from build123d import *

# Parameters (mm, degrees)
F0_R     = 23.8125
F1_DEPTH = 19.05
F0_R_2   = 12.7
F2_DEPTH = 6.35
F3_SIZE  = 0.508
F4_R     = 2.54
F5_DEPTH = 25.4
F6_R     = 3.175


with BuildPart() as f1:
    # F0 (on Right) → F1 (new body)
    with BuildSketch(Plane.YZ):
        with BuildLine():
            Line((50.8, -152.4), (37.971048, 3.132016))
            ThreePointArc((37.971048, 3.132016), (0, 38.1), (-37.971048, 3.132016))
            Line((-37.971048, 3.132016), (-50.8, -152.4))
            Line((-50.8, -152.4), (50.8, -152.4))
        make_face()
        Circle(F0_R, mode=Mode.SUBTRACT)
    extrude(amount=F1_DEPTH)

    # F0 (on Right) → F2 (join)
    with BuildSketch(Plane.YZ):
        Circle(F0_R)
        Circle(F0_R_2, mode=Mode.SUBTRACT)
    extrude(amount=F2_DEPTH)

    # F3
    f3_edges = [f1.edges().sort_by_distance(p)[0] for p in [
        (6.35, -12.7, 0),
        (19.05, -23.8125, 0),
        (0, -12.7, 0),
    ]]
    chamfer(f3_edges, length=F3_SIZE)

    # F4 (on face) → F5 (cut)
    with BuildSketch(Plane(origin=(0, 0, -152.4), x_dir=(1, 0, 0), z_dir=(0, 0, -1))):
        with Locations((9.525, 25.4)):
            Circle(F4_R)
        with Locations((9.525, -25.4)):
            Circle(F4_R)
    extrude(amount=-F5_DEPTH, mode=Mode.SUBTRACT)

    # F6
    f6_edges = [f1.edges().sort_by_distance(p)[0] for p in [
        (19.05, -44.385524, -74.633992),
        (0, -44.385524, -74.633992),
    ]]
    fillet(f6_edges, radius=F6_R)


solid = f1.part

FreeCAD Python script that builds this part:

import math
import FreeCAD as App
import Part
import Sketcher
Q = App.Units.Quantity


def edges_at(feature, points):
    """Names of the edges that pass closest to the given points."""
    edges = feature.Shape.Edges
    near = lambda p: min(range(len(edges)), key=lambda i: edges[i].distToShape(Part.Vertex(*p))[0])
    return sorted({f"Edge{near(p) + 1}" for p in points})

doc = App.newDocument("Part")
params = doc.addObject("Spreadsheet::Sheet", "Params")
for row, (alias, value) in enumerate([
    ("sketch1_radius", "1.5 in"),
    ("sketch1_width", "4 in"),
    ("sketch1_diameter", "1.875 in"),
    ("pad1_length", "0.75 in"),
    ("sketch2_diameter", "1 in"),
    ("sketch2_diameter2", "1.875 in"),
    ("pad2_length", "0.25 in"),
    ("chamfer_size", "0.02 in"),
    ("sketch3_diameter", "0.2 in"),
    ("pocket1_length", "1 in"),
    ("fillet_radius", "0.125 in"),
], start=1):
    params.set(f"A{row}", alias)
    params.set(f"B{row}", "=" + value)
    params.setAlias(f"B{row}", alias)

body = doc.addObject("PartDesign::Body", "Body")

sketch1 = doc.addObject("Sketcher::SketchObject", "Sketch")
body.addObject(sketch1)
sketch1.AttachmentSupport = (doc.YZ_Plane, [""])
sketch1.MapMode = "FlatFace"
sketch1.addGeometry(Part.LineSegment(App.Vector(50.8, -152.4, 0), App.Vector(37.971048, 3.132016, 0)), False)
sketch1.addGeometry(Part.ArcOfCircle(Part.Circle(App.Vector(0, 0, 0), App.Vector(0, 0, 1), 38.1), math.radians(4.715329), math.radians(175.284671)), False)
sketch1.addGeometry(Part.LineSegment(App.Vector(-37.971048, 3.132016, 0), App.Vector(-50.8, -152.4, 0)), False)
sketch1.addGeometry(Part.LineSegment(App.Vector(-50.8, -152.4, 0), App.Vector(50.8, -152.4, 0)), False)
sketch1.addGeometry(Part.Circle(App.Vector(0, 0, 0), App.Vector(0, 0, 1), 23.8125), False)
sketch1.addConstraint(Sketcher.Constraint("Tangent", 0, 2, 1, 1))
sketch1.addConstraint(Sketcher.Constraint("Tangent", 1, 2, 2, 1))
sketch1.addConstraint(Sketcher.Constraint("Coincident", 2, 2, 3, 1))
sketch1.addConstraint(Sketcher.Constraint("Coincident", 3, 2, 0, 1))
sketch1.addConstraint(Sketcher.Constraint("Horizontal", 3))
sketch1.addConstraint(Sketcher.Constraint("Coincident", 1, 3, -1, 1))
sketch1.addConstraint(Sketcher.Constraint("Coincident", 4, 3, -1, 1))
sketch1.addConstraint(Sketcher.Constraint("Horizontal", 0, 2, 1, 2))
sketch1.addConstraint(Sketcher.Constraint("Radius", 1, Q("1.5 in")))
sketch1.addConstraint(Sketcher.Constraint("DistanceX", 3, 1, 3, 2, Q("4 in")))
sketch1.addConstraint(Sketcher.Constraint("Diameter", 4, Q("1.875 in")))
sketch1.addConstraint(Sketcher.Constraint("DistanceY", 2, 2, -1, 1, Q("6 in")))
sketch1.setExpression("Constraints[8]", "Params.sketch1_radius")
sketch1.setExpression("Constraints[9]", "Params.sketch1_width")
sketch1.setExpression("Constraints[10]", "Params.sketch1_diameter")
pad1 = doc.addObject("PartDesign::Pad", "Pad")
body.addObject(pad1)
pad1.Profile = sketch1
pad1.setExpression("Length", "Params.pad1_length")

sketch2 = doc.addObject("Sketcher::SketchObject", "Sketch001")
body.addObject(sketch2)
sketch2.AttachmentSupport = (doc.YZ_Plane, [""])
sketch2.MapMode = "FlatFace"
sketch2.addGeometry(Part.Circle(App.Vector(0, 0, 0), App.Vector(0, 0, 1), 23.8125), False)
sketch2.addGeometry(Part.Circle(App.Vector(0, 0, 0), App.Vector(0, 0, 1), 12.7), False)
sketch2.addConstraint(Sketcher.Constraint("Coincident", 0, 3, -1, 1))
sketch2.addConstraint(Sketcher.Constraint("Coincident", 1, 3, -1, 1))
sketch2.addConstraint(Sketcher.Constraint("Diameter", 1, Q("1 in")))
sketch2.addConstraint(Sketcher.Constraint("Diameter", 0, Q("1.875 in")))
sketch2.setExpression("Constraints[2]", "Params.sketch2_diameter")
sketch2.setExpression("Constraints[3]", "Params.sketch2_diameter2")
pad2 = doc.addObject("PartDesign::Pad", "Pad001")
body.addObject(pad2)
pad2.Profile = sketch2
pad2.setExpression("Length", "Params.pad2_length")
doc.recompute()

chamfer = doc.addObject("PartDesign::Chamfer", "Chamfer")
body.addObject(chamfer)
chamfer.Base = (pad2, edges_at(pad2, [(6.35, -12.7, 0), (19.05, -23.812, 0), (0, -12.7, 0)]))
chamfer.setExpression("Size", "Params.chamfer_size")

sketch3 = doc.addObject("Sketcher::SketchObject", "Sketch002")
body.addObject(sketch3)
sketch3.AttachmentSupport = (doc.XY_Plane, [""])
sketch3.MapMode = "FlatFace"
sketch3.AttachmentOffset = App.Placement(App.Vector(0, 0, -6 * 25.4), App.Rotation())
sketch3.addGeometry(Part.Circle(App.Vector(9.525, -25.4, 0), App.Vector(0, 0, 1), 2.54), False)
sketch3.addGeometry(Part.Circle(App.Vector(9.525, 25.4, 0), App.Vector(0, 0, 1), 2.54), False)
sketch3.addConstraint(Sketcher.Constraint("Equal", 0, 1))
sketch3.addConstraint(Sketcher.Constraint("Symmetric", 0, 3, 1, 3, -1))
sketch3.addConstraint(Sketcher.Constraint("Diameter", 0, Q("0.2 in")))
sketch3.addConstraint(Sketcher.Constraint("DistanceY", 0, 3, -1, 1, Q("1 in")))
sketch3.addConstraint(Sketcher.Constraint("DistanceX", -1, 1, 0, 3, Q("0.375 in")))
sketch3.setExpression("Constraints[2]", "Params.sketch3_diameter")
pocket1 = doc.addObject("PartDesign::Pocket", "Pocket")
body.addObject(pocket1)
pocket1.Profile = sketch3
pocket1.setExpression("Length", "Params.pocket1_length")
pocket1.Reversed = True
doc.recompute()

fillet = doc.addObject("PartDesign::Fillet", "Fillet")
body.addObject(fillet)
fillet.Base = (pocket1, edges_at(pocket1, [(19.05, -44.386, -74.634), (0, -44.386, -74.634)]))
fillet.setExpression("Radius", "Params.fillet_radius")

doc.recompute()
